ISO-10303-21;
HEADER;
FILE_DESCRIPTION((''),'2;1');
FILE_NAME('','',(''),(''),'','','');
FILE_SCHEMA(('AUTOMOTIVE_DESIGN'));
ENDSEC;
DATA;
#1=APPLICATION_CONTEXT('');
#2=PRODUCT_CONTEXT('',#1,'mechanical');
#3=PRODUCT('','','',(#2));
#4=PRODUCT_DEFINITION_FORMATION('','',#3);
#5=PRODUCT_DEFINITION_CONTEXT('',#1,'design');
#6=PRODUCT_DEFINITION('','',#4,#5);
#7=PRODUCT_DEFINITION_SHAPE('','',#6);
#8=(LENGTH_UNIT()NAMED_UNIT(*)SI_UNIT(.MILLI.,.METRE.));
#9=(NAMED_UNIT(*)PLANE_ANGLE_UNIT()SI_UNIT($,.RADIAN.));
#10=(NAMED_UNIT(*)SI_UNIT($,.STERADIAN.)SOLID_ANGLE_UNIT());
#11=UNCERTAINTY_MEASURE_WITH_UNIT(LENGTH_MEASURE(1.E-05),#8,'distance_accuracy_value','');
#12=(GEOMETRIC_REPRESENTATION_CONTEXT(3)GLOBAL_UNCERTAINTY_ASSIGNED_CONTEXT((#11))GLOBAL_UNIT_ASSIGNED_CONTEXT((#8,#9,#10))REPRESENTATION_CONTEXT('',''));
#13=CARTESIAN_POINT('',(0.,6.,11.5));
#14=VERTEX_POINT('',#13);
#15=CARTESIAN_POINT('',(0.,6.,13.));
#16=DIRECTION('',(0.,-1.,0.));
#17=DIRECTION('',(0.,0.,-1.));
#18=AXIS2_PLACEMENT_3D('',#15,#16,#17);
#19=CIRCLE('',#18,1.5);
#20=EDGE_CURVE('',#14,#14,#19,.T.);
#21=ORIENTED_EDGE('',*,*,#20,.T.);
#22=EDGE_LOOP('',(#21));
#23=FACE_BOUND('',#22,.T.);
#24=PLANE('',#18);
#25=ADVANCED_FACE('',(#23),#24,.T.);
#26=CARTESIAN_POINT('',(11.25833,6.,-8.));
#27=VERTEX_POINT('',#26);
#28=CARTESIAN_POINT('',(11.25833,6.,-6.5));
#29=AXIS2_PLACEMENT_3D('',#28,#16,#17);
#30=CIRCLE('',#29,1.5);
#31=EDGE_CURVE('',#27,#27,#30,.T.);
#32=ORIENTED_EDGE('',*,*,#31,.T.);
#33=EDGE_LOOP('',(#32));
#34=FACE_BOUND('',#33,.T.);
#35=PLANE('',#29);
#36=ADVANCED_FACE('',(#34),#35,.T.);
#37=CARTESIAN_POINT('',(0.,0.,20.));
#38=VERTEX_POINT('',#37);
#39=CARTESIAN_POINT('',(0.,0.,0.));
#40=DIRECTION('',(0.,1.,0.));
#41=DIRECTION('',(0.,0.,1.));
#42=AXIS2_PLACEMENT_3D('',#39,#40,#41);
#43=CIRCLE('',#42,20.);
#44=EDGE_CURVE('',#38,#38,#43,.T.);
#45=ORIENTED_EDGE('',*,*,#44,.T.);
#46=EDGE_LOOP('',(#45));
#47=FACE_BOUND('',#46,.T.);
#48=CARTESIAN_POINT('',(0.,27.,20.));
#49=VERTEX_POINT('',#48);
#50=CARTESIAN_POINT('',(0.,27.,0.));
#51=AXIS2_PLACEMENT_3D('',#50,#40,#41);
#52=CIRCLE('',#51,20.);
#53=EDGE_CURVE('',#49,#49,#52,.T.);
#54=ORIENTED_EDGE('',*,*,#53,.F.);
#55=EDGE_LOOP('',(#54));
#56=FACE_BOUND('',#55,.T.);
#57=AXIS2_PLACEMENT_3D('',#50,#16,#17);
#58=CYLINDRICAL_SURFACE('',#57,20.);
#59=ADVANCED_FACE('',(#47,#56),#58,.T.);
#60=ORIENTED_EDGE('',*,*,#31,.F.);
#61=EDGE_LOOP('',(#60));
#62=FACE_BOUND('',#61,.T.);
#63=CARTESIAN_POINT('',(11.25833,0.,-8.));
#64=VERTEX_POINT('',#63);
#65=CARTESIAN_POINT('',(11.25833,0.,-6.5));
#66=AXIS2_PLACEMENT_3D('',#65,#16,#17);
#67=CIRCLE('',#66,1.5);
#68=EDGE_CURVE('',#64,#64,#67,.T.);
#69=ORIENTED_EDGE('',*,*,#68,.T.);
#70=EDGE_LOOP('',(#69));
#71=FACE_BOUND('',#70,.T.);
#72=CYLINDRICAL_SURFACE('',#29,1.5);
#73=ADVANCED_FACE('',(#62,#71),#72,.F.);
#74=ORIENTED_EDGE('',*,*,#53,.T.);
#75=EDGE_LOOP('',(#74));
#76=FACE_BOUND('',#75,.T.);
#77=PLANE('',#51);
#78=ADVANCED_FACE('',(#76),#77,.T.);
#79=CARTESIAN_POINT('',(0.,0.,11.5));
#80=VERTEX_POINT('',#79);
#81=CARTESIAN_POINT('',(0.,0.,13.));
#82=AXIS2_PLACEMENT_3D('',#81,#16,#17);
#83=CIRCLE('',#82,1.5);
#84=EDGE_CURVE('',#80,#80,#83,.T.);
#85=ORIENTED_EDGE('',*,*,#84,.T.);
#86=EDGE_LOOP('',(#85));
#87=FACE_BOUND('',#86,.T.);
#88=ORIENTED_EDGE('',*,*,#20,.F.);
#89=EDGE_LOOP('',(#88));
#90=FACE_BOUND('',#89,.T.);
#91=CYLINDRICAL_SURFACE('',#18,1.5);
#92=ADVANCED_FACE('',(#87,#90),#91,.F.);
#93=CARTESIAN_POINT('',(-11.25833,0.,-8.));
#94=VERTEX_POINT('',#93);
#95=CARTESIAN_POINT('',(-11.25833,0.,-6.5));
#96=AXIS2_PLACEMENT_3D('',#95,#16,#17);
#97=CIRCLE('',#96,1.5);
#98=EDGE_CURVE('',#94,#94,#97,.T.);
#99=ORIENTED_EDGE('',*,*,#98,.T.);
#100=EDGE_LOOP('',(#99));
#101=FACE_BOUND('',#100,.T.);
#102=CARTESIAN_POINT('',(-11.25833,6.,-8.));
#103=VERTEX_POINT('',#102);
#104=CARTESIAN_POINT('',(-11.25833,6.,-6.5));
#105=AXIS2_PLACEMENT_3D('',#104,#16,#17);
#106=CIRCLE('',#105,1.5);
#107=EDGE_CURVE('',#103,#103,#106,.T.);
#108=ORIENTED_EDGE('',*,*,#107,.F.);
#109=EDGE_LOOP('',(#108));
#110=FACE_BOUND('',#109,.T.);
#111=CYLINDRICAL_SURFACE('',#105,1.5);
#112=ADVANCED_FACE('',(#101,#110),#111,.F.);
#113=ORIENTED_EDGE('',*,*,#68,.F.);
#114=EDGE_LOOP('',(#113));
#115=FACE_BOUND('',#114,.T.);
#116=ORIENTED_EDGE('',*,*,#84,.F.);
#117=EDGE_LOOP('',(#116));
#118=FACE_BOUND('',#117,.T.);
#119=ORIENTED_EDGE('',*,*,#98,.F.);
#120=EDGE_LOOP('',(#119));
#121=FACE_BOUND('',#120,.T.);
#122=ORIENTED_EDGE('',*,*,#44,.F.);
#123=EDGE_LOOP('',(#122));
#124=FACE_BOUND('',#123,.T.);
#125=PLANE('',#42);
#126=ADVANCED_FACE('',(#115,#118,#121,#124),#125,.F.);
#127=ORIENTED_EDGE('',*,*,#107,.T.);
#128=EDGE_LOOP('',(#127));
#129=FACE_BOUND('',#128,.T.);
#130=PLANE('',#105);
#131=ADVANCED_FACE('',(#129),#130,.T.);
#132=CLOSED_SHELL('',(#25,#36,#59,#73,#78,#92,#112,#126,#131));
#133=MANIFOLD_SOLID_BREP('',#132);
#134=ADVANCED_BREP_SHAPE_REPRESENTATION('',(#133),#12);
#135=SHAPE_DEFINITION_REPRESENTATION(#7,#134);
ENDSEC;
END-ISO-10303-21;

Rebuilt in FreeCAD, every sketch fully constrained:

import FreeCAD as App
import Part
import Sketcher
from FreeCAD import Vector

doc = App.newDocument("Part")
body = doc.addObject("PartDesign::Body", "Body")

sketch1 = doc.addObject("Sketcher::SketchObject", "Sketch")
body.addObject(sketch1)
sketch1.AttachmentSupport = (doc.XZ_Plane, [""])
sketch1.MapMode = "FlatFace"
sketch1.addGeometry(Part.Circle(Vector(0, 0, 0), Vector(0, 0, 1), 20), False)
sketch1.addConstraint(Sketcher.Constraint("Coincident", 0, 3, -1, 1))
sketch1.addConstraint(Sketcher.Constraint("Diameter", 0, 40.0))
pad1 = doc.addObject("PartDesign::Pad", "Pad")
body.addObject(pad1)
pad1.Profile = sketch1
pad1.Length = 27
pad1.Reversed = True

sketch2 = doc.addObject("Sketcher::SketchObject", "Sketch001")
body.addObject(sketch2)
sketch2.AttachmentSupport = (doc.XZ_Plane, [""])
sketch2.MapMode = "FlatFace"
sketch2.addGeometry(Part.Circle(Vector(0, 13, 0), Vector(0, 0, 1), 1.5), False)
sketch2.addGeometry(Part.Circle(Vector(11.25833, -6.5, 0), Vector(0, 0, 1), 1.5), False)
sketch2.addGeometry(Part.Circle(Vector(-11.25833, -6.5, 0), Vector(0, 0, 1), 1.5), False)
sketch2.addConstraint(Sketcher.Constraint("Equal", 0, 1))
sketch2.addConstraint(Sketcher.Constraint("Equal", 1, 2))
sketch2.addConstraint(Sketcher.Constraint("Symmetric", 1, 3, 2, 3, -2))
sketch2.addConstraint(Sketcher.Constraint("PointOnObject", 0, 3, -2))
sketch2.addConstraint(Sketcher.Constraint("Diameter", 0, 3.0))
sketch2.addConstraint(Sketcher.Constraint("DistanceY", -1, 1, 0, 3, 13.0))
sketch2.addConstraint(Sketcher.Constraint("DistanceY", 1, 3, -1, 1, 6.5))
sketch2.addConstraint(Sketcher.Constraint("DistanceX", -1, 1, 1, 3, 11.25833))
pocket1 = doc.addObject("PartDesign::Pocket", "Pocket")
body.addObject(pocket1)
pocket1.Profile = sketch2
pocket1.Length = 6

doc.recompute()
